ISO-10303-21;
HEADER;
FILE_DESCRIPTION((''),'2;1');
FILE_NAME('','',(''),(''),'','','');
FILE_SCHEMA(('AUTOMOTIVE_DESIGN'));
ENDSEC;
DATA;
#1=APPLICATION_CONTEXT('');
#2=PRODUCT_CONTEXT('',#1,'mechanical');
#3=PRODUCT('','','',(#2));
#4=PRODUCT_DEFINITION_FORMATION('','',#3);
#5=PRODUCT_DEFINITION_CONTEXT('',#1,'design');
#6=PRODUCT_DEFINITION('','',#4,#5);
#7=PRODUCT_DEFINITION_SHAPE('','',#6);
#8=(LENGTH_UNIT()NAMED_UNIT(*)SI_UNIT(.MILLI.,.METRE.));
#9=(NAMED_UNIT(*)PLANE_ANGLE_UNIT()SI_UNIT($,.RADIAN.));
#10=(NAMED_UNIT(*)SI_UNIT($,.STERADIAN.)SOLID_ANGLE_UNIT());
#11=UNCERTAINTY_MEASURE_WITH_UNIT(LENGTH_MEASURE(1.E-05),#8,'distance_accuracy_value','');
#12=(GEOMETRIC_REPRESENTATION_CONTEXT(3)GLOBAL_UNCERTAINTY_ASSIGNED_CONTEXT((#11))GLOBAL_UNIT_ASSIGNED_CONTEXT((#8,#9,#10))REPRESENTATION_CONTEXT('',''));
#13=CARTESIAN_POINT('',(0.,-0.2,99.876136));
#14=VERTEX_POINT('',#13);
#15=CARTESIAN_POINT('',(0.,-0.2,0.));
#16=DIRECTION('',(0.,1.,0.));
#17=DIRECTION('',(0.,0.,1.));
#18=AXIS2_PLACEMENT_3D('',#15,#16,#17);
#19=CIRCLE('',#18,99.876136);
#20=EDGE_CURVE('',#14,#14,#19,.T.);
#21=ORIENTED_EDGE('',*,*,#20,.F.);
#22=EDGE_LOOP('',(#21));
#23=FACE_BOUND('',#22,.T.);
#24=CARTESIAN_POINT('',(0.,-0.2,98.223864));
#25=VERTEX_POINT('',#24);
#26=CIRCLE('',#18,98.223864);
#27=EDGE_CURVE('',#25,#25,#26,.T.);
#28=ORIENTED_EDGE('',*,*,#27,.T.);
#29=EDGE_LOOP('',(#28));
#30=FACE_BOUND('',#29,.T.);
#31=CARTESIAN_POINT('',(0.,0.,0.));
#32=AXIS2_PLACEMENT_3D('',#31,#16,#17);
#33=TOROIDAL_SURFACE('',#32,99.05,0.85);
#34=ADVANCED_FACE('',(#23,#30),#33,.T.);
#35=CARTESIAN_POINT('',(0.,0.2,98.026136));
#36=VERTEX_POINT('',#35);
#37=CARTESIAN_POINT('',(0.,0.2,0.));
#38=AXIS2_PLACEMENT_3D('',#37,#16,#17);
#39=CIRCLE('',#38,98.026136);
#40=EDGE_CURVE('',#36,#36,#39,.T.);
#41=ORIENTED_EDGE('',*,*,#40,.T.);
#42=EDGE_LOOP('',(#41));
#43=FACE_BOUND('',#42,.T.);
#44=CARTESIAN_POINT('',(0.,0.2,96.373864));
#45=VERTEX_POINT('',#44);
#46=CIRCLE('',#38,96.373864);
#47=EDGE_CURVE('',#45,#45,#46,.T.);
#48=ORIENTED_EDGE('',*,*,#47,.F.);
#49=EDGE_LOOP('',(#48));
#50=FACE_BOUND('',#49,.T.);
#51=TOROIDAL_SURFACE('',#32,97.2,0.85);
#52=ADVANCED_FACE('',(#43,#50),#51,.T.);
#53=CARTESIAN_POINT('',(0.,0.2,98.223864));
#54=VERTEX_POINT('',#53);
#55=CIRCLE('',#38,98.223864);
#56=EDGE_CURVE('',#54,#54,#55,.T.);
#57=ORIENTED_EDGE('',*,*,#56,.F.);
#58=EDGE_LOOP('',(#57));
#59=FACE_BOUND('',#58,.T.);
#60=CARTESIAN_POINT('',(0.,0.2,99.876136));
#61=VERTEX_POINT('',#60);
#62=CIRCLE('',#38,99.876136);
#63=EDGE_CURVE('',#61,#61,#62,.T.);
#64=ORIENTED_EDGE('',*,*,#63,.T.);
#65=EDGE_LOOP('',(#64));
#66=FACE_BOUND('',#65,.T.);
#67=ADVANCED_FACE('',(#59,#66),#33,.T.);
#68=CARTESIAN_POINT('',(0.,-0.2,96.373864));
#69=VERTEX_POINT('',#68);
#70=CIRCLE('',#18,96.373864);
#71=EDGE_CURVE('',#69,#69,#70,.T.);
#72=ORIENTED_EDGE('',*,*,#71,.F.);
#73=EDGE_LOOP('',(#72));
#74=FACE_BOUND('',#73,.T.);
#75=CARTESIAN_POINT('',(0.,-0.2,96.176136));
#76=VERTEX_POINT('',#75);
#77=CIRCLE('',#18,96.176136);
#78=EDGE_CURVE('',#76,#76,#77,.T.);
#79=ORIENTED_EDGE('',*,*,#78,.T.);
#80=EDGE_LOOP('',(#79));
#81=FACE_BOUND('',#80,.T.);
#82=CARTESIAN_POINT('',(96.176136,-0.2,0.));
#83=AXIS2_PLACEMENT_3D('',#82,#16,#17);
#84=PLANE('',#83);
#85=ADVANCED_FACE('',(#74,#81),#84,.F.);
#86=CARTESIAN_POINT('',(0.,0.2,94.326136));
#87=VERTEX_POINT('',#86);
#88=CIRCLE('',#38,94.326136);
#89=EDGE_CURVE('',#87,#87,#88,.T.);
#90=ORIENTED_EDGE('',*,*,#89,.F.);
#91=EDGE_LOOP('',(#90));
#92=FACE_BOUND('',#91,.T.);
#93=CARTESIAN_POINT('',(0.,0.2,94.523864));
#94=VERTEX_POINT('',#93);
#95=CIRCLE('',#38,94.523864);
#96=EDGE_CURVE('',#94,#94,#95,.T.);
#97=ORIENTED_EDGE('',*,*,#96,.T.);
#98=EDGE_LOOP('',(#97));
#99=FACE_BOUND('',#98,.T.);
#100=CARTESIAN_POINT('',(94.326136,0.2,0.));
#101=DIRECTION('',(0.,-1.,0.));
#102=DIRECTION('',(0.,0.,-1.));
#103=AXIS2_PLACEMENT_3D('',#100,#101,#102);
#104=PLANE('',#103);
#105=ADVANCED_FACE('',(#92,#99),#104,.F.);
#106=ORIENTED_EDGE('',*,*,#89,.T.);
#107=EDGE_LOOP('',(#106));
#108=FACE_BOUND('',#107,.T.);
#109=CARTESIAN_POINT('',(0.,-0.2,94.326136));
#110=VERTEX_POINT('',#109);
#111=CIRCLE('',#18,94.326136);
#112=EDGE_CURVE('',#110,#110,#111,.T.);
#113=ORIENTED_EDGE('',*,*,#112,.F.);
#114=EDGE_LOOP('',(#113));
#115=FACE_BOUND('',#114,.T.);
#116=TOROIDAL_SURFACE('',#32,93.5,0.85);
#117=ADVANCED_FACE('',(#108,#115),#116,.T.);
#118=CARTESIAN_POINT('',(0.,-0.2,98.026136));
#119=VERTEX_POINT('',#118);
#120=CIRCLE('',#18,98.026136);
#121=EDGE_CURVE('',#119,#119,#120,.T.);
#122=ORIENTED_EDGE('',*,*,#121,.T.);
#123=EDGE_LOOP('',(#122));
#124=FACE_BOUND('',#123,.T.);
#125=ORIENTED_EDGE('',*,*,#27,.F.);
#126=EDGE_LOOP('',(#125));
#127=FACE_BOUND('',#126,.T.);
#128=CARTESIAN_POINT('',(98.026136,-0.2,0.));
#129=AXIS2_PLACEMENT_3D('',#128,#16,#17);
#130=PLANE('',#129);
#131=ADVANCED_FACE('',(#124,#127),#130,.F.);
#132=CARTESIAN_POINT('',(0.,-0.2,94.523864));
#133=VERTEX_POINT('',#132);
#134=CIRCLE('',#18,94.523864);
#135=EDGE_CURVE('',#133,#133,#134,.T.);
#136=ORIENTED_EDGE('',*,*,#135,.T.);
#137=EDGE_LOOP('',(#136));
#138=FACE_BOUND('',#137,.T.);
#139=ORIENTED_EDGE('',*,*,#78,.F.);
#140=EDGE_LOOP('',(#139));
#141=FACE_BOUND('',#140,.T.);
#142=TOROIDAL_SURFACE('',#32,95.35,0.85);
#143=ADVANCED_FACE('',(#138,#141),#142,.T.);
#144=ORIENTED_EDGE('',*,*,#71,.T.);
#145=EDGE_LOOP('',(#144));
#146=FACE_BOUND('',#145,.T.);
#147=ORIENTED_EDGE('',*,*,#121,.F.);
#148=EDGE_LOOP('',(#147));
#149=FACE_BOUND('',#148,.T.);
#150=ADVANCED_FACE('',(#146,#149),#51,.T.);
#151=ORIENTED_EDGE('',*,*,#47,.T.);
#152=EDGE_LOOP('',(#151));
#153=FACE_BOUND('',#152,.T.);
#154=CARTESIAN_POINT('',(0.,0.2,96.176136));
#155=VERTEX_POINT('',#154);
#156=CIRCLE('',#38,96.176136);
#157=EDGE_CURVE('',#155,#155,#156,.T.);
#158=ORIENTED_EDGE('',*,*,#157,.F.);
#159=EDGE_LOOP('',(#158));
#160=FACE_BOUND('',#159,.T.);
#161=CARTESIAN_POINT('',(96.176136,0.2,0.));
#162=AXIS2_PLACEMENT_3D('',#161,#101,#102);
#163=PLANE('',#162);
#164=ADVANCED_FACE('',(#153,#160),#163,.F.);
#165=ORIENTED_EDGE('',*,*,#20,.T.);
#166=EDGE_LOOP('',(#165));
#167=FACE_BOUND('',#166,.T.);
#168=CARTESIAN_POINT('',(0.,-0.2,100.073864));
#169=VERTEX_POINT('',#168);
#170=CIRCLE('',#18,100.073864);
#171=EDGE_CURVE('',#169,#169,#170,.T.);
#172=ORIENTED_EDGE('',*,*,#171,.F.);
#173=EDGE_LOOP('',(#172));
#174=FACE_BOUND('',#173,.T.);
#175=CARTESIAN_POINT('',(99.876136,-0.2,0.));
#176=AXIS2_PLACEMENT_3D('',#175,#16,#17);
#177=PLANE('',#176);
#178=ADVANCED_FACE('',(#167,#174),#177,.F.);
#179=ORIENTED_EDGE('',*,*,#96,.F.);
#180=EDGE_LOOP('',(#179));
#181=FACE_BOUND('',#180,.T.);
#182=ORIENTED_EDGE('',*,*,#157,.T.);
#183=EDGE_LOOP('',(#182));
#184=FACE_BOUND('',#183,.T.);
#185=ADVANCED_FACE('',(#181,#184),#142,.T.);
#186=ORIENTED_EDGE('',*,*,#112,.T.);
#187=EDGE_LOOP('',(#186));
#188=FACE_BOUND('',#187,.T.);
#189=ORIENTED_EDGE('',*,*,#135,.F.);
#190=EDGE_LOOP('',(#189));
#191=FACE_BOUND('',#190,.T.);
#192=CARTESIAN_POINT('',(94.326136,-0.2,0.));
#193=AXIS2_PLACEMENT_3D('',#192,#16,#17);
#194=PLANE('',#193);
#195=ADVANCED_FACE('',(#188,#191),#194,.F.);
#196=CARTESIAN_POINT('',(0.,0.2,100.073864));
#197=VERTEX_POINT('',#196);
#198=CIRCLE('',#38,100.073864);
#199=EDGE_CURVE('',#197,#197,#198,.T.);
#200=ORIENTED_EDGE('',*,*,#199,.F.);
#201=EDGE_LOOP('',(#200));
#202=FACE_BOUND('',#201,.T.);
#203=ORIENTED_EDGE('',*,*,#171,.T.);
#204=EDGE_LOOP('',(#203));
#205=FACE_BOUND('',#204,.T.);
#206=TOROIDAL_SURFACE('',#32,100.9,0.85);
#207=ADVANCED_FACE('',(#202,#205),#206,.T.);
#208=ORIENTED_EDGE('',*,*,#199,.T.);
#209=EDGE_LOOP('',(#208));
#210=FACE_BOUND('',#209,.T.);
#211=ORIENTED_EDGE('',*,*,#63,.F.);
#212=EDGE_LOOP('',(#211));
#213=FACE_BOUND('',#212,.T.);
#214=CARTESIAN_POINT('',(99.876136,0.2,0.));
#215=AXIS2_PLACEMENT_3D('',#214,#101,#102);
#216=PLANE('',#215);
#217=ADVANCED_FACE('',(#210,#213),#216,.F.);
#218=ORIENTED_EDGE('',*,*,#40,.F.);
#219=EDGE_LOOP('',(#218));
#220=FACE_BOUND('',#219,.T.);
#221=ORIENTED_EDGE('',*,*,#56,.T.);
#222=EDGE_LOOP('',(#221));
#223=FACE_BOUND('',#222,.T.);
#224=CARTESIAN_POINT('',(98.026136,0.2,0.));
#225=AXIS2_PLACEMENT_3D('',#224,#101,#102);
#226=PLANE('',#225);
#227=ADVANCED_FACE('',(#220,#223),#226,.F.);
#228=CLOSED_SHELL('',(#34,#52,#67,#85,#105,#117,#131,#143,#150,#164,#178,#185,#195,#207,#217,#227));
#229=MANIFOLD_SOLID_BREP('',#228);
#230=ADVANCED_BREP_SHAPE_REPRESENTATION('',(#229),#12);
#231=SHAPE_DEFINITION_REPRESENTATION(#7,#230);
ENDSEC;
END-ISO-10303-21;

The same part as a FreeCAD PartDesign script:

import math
import FreeCAD as App
import Part
import Sketcher

V = App.Vector

doc = App.newDocument("Part")
body = doc.addObject("PartDesign::Body", "Body")

sketch1 = body.newObject("Sketcher::SketchObject", "Sketch")
sketch1.AttachmentSupport = (doc.getObject("XY_Plane"), [""])
sketch1.MapMode = "FlatFace"
sketch1.addGeometry([
    Part.LineSegment(V(94.52, 0.2, 0), V(94.33, 0.2, 0)),
    Part.ArcOfCircle(Part.Circle(V(93.5, 0, 0), V(0, 0, 1), 0.85), math.radians(14), math.radians(346)),
    Part.LineSegment(V(94.33, -0.2, 0), V(94.52, -0.2, 0)),
    Part.ArcOfCircle(Part.Circle(V(95.35, 0, 0), V(0, 0, 1), 0.85), math.radians(-166), math.radians(-14)),
    Part.LineSegment(V(96.18, -0.2, 0), V(96.37, -0.2, 0)),
    Part.ArcOfCircle(Part.Circle(V(97.2, 0, 0), V(0, 0, 1), 0.85), math.radians(-166), math.radians(-14)),
    Part.LineSegment(V(98.03, -0.2, 0), V(98.22, -0.2, 0)),
    Part.ArcOfCircle(Part.Circle(V(99.05, 0, 0), V(0, 0, 1), 0.85), math.radians(-166), math.radians(-14)),
    Part.LineSegment(V(99.88, -0.2, 0), V(100.07, -0.2, 0)),
    Part.ArcOfCircle(Part.Circle(V(100.9, 0, 0), V(0, 0, 1), 0.85), math.radians(-166), math.radians(166)),
    Part.LineSegment(V(100.07, 0.2, 0), V(99.88, 0.2, 0)),
    Part.ArcOfCircle(Part.Circle(V(99.05, 0, 0), V(0, 0, 1), 0.85), math.radians(14), math.radians(166)),
    Part.LineSegment(V(98.22, 0.2, 0), V(98.03, 0.2, 0)),
    Part.ArcOfCircle(Part.Circle(V(97.2, 0, 0), V(0, 0, 1), 0.85), math.radians(14), math.radians(166)),
    Part.LineSegment(V(96.37, 0.2, 0), V(96.18, 0.2, 0)),
    Part.ArcOfCircle(Part.Circle(V(95.35, 0, 0), V(0, 0, 1), 0.85), math.radians(14), math.radians(166)),
], False)
sketch1.addConstraint([
    Sketcher.Constraint("Coincident", 0, 2, 1, 1),
    Sketcher.Constraint("Coincident", 1, 2, 2, 1),
    Sketcher.Constraint("Coincident", 2, 2, 3, 1),
    Sketcher.Constraint("Coincident", 3, 2, 4, 1),
    Sketcher.Constraint("Coincident", 4, 2, 5, 1),
    Sketcher.Constraint("Coincident", 5, 2, 6, 1),
    Sketcher.Constraint("Coincident", 6, 2, 7, 1),
    Sketcher.Constraint("Coincident", 7, 2, 8, 1),
    Sketcher.Constraint("Coincident", 8, 2, 9, 1),
    Sketcher.Constraint("Coincident", 9, 2, 10, 1),
    Sketcher.Constraint("Coincident", 10, 2, 11, 1),
    Sketcher.Constraint("Coincident", 11, 2, 12, 1),
    Sketcher.Constraint("Coincident", 12, 2, 13, 1),
    Sketcher.Constraint("Coincident", 13, 2, 14, 1),
    Sketcher.Constraint("Coincident", 14, 2, 15, 1),
    Sketcher.Constraint("Coincident", 15, 2, 0, 1),
    Sketcher.Constraint("Horizontal", 0),
    Sketcher.Constraint("Horizontal", 2),
    Sketcher.Constraint("Horizontal", 4),
    Sketcher.Constraint("Horizontal", 6),
    Sketcher.Constraint("Horizontal", 8),
    Sketcher.Constraint("Horizontal", 10),
    Sketcher.Constraint("Horizontal", 12),
    Sketcher.Constraint("Horizontal", 14),
    Sketcher.Constraint("Coincident", 11, 3, 7, 3),
    Sketcher.Constraint("Coincident", 13, 3, 5, 3),
    Sketcher.Constraint("Coincident", 15, 3, 3, 3),
    Sketcher.Constraint("Equal", 1, 3),
    Sketcher.Constraint("Equal", 3, 5),
    Sketcher.Constraint("Equal", 5, 7),
    Sketcher.Constraint("Equal", 7, 9),
    Sketcher.Constraint("Equal", 9, 11),
    Sketcher.Constraint("Equal", 11, 13),
    Sketcher.Constraint("Equal", 13, 15),
    Sketcher.Constraint("Symmetric", 0, 2, 1, 2, -1),
    Sketcher.Constraint("Symmetric", 8, 2, 9, 2, -1),
    Sketcher.Constraint("Symmetric", 6, 2, 11, 2, -1),
    Sketcher.Constraint("Symmetric", 4, 2, 13, 2, -1),
    Sketcher.Constraint("PointOnObject", 3, 3, -1),
    Sketcher.Constraint("Horizontal", 2, 2, 3, 2),
    Sketcher.Constraint("Horizontal", 4, 2, 5, 2),
    Sketcher.Constraint("Horizontal", 6, 2, 7, 2),
    Sketcher.Constraint("Equal", 2, 4),
    Sketcher.Constraint("Equal", 4, 6),
    Sketcher.Constraint("Equal", 6, 8),
    Sketcher.Constraint("Radius", 1, 0.85),
    Sketcher.Constraint("DistanceX", -1, 1, 1, 3, 93.5),
    Sketcher.Constraint("DistanceX", -1, 1, 5, 3, 97.2),
    Sketcher.Constraint("DistanceY", -1, 1, 0, 2, 0.2),
])
revolution = body.newObject("PartDesign::Revolution", "Revolution")
revolution.Profile = sketch1
revolution.ReferenceAxis = (sketch1, ["V_Axis"])
revolution.Angle = 360

doc.recompute()
